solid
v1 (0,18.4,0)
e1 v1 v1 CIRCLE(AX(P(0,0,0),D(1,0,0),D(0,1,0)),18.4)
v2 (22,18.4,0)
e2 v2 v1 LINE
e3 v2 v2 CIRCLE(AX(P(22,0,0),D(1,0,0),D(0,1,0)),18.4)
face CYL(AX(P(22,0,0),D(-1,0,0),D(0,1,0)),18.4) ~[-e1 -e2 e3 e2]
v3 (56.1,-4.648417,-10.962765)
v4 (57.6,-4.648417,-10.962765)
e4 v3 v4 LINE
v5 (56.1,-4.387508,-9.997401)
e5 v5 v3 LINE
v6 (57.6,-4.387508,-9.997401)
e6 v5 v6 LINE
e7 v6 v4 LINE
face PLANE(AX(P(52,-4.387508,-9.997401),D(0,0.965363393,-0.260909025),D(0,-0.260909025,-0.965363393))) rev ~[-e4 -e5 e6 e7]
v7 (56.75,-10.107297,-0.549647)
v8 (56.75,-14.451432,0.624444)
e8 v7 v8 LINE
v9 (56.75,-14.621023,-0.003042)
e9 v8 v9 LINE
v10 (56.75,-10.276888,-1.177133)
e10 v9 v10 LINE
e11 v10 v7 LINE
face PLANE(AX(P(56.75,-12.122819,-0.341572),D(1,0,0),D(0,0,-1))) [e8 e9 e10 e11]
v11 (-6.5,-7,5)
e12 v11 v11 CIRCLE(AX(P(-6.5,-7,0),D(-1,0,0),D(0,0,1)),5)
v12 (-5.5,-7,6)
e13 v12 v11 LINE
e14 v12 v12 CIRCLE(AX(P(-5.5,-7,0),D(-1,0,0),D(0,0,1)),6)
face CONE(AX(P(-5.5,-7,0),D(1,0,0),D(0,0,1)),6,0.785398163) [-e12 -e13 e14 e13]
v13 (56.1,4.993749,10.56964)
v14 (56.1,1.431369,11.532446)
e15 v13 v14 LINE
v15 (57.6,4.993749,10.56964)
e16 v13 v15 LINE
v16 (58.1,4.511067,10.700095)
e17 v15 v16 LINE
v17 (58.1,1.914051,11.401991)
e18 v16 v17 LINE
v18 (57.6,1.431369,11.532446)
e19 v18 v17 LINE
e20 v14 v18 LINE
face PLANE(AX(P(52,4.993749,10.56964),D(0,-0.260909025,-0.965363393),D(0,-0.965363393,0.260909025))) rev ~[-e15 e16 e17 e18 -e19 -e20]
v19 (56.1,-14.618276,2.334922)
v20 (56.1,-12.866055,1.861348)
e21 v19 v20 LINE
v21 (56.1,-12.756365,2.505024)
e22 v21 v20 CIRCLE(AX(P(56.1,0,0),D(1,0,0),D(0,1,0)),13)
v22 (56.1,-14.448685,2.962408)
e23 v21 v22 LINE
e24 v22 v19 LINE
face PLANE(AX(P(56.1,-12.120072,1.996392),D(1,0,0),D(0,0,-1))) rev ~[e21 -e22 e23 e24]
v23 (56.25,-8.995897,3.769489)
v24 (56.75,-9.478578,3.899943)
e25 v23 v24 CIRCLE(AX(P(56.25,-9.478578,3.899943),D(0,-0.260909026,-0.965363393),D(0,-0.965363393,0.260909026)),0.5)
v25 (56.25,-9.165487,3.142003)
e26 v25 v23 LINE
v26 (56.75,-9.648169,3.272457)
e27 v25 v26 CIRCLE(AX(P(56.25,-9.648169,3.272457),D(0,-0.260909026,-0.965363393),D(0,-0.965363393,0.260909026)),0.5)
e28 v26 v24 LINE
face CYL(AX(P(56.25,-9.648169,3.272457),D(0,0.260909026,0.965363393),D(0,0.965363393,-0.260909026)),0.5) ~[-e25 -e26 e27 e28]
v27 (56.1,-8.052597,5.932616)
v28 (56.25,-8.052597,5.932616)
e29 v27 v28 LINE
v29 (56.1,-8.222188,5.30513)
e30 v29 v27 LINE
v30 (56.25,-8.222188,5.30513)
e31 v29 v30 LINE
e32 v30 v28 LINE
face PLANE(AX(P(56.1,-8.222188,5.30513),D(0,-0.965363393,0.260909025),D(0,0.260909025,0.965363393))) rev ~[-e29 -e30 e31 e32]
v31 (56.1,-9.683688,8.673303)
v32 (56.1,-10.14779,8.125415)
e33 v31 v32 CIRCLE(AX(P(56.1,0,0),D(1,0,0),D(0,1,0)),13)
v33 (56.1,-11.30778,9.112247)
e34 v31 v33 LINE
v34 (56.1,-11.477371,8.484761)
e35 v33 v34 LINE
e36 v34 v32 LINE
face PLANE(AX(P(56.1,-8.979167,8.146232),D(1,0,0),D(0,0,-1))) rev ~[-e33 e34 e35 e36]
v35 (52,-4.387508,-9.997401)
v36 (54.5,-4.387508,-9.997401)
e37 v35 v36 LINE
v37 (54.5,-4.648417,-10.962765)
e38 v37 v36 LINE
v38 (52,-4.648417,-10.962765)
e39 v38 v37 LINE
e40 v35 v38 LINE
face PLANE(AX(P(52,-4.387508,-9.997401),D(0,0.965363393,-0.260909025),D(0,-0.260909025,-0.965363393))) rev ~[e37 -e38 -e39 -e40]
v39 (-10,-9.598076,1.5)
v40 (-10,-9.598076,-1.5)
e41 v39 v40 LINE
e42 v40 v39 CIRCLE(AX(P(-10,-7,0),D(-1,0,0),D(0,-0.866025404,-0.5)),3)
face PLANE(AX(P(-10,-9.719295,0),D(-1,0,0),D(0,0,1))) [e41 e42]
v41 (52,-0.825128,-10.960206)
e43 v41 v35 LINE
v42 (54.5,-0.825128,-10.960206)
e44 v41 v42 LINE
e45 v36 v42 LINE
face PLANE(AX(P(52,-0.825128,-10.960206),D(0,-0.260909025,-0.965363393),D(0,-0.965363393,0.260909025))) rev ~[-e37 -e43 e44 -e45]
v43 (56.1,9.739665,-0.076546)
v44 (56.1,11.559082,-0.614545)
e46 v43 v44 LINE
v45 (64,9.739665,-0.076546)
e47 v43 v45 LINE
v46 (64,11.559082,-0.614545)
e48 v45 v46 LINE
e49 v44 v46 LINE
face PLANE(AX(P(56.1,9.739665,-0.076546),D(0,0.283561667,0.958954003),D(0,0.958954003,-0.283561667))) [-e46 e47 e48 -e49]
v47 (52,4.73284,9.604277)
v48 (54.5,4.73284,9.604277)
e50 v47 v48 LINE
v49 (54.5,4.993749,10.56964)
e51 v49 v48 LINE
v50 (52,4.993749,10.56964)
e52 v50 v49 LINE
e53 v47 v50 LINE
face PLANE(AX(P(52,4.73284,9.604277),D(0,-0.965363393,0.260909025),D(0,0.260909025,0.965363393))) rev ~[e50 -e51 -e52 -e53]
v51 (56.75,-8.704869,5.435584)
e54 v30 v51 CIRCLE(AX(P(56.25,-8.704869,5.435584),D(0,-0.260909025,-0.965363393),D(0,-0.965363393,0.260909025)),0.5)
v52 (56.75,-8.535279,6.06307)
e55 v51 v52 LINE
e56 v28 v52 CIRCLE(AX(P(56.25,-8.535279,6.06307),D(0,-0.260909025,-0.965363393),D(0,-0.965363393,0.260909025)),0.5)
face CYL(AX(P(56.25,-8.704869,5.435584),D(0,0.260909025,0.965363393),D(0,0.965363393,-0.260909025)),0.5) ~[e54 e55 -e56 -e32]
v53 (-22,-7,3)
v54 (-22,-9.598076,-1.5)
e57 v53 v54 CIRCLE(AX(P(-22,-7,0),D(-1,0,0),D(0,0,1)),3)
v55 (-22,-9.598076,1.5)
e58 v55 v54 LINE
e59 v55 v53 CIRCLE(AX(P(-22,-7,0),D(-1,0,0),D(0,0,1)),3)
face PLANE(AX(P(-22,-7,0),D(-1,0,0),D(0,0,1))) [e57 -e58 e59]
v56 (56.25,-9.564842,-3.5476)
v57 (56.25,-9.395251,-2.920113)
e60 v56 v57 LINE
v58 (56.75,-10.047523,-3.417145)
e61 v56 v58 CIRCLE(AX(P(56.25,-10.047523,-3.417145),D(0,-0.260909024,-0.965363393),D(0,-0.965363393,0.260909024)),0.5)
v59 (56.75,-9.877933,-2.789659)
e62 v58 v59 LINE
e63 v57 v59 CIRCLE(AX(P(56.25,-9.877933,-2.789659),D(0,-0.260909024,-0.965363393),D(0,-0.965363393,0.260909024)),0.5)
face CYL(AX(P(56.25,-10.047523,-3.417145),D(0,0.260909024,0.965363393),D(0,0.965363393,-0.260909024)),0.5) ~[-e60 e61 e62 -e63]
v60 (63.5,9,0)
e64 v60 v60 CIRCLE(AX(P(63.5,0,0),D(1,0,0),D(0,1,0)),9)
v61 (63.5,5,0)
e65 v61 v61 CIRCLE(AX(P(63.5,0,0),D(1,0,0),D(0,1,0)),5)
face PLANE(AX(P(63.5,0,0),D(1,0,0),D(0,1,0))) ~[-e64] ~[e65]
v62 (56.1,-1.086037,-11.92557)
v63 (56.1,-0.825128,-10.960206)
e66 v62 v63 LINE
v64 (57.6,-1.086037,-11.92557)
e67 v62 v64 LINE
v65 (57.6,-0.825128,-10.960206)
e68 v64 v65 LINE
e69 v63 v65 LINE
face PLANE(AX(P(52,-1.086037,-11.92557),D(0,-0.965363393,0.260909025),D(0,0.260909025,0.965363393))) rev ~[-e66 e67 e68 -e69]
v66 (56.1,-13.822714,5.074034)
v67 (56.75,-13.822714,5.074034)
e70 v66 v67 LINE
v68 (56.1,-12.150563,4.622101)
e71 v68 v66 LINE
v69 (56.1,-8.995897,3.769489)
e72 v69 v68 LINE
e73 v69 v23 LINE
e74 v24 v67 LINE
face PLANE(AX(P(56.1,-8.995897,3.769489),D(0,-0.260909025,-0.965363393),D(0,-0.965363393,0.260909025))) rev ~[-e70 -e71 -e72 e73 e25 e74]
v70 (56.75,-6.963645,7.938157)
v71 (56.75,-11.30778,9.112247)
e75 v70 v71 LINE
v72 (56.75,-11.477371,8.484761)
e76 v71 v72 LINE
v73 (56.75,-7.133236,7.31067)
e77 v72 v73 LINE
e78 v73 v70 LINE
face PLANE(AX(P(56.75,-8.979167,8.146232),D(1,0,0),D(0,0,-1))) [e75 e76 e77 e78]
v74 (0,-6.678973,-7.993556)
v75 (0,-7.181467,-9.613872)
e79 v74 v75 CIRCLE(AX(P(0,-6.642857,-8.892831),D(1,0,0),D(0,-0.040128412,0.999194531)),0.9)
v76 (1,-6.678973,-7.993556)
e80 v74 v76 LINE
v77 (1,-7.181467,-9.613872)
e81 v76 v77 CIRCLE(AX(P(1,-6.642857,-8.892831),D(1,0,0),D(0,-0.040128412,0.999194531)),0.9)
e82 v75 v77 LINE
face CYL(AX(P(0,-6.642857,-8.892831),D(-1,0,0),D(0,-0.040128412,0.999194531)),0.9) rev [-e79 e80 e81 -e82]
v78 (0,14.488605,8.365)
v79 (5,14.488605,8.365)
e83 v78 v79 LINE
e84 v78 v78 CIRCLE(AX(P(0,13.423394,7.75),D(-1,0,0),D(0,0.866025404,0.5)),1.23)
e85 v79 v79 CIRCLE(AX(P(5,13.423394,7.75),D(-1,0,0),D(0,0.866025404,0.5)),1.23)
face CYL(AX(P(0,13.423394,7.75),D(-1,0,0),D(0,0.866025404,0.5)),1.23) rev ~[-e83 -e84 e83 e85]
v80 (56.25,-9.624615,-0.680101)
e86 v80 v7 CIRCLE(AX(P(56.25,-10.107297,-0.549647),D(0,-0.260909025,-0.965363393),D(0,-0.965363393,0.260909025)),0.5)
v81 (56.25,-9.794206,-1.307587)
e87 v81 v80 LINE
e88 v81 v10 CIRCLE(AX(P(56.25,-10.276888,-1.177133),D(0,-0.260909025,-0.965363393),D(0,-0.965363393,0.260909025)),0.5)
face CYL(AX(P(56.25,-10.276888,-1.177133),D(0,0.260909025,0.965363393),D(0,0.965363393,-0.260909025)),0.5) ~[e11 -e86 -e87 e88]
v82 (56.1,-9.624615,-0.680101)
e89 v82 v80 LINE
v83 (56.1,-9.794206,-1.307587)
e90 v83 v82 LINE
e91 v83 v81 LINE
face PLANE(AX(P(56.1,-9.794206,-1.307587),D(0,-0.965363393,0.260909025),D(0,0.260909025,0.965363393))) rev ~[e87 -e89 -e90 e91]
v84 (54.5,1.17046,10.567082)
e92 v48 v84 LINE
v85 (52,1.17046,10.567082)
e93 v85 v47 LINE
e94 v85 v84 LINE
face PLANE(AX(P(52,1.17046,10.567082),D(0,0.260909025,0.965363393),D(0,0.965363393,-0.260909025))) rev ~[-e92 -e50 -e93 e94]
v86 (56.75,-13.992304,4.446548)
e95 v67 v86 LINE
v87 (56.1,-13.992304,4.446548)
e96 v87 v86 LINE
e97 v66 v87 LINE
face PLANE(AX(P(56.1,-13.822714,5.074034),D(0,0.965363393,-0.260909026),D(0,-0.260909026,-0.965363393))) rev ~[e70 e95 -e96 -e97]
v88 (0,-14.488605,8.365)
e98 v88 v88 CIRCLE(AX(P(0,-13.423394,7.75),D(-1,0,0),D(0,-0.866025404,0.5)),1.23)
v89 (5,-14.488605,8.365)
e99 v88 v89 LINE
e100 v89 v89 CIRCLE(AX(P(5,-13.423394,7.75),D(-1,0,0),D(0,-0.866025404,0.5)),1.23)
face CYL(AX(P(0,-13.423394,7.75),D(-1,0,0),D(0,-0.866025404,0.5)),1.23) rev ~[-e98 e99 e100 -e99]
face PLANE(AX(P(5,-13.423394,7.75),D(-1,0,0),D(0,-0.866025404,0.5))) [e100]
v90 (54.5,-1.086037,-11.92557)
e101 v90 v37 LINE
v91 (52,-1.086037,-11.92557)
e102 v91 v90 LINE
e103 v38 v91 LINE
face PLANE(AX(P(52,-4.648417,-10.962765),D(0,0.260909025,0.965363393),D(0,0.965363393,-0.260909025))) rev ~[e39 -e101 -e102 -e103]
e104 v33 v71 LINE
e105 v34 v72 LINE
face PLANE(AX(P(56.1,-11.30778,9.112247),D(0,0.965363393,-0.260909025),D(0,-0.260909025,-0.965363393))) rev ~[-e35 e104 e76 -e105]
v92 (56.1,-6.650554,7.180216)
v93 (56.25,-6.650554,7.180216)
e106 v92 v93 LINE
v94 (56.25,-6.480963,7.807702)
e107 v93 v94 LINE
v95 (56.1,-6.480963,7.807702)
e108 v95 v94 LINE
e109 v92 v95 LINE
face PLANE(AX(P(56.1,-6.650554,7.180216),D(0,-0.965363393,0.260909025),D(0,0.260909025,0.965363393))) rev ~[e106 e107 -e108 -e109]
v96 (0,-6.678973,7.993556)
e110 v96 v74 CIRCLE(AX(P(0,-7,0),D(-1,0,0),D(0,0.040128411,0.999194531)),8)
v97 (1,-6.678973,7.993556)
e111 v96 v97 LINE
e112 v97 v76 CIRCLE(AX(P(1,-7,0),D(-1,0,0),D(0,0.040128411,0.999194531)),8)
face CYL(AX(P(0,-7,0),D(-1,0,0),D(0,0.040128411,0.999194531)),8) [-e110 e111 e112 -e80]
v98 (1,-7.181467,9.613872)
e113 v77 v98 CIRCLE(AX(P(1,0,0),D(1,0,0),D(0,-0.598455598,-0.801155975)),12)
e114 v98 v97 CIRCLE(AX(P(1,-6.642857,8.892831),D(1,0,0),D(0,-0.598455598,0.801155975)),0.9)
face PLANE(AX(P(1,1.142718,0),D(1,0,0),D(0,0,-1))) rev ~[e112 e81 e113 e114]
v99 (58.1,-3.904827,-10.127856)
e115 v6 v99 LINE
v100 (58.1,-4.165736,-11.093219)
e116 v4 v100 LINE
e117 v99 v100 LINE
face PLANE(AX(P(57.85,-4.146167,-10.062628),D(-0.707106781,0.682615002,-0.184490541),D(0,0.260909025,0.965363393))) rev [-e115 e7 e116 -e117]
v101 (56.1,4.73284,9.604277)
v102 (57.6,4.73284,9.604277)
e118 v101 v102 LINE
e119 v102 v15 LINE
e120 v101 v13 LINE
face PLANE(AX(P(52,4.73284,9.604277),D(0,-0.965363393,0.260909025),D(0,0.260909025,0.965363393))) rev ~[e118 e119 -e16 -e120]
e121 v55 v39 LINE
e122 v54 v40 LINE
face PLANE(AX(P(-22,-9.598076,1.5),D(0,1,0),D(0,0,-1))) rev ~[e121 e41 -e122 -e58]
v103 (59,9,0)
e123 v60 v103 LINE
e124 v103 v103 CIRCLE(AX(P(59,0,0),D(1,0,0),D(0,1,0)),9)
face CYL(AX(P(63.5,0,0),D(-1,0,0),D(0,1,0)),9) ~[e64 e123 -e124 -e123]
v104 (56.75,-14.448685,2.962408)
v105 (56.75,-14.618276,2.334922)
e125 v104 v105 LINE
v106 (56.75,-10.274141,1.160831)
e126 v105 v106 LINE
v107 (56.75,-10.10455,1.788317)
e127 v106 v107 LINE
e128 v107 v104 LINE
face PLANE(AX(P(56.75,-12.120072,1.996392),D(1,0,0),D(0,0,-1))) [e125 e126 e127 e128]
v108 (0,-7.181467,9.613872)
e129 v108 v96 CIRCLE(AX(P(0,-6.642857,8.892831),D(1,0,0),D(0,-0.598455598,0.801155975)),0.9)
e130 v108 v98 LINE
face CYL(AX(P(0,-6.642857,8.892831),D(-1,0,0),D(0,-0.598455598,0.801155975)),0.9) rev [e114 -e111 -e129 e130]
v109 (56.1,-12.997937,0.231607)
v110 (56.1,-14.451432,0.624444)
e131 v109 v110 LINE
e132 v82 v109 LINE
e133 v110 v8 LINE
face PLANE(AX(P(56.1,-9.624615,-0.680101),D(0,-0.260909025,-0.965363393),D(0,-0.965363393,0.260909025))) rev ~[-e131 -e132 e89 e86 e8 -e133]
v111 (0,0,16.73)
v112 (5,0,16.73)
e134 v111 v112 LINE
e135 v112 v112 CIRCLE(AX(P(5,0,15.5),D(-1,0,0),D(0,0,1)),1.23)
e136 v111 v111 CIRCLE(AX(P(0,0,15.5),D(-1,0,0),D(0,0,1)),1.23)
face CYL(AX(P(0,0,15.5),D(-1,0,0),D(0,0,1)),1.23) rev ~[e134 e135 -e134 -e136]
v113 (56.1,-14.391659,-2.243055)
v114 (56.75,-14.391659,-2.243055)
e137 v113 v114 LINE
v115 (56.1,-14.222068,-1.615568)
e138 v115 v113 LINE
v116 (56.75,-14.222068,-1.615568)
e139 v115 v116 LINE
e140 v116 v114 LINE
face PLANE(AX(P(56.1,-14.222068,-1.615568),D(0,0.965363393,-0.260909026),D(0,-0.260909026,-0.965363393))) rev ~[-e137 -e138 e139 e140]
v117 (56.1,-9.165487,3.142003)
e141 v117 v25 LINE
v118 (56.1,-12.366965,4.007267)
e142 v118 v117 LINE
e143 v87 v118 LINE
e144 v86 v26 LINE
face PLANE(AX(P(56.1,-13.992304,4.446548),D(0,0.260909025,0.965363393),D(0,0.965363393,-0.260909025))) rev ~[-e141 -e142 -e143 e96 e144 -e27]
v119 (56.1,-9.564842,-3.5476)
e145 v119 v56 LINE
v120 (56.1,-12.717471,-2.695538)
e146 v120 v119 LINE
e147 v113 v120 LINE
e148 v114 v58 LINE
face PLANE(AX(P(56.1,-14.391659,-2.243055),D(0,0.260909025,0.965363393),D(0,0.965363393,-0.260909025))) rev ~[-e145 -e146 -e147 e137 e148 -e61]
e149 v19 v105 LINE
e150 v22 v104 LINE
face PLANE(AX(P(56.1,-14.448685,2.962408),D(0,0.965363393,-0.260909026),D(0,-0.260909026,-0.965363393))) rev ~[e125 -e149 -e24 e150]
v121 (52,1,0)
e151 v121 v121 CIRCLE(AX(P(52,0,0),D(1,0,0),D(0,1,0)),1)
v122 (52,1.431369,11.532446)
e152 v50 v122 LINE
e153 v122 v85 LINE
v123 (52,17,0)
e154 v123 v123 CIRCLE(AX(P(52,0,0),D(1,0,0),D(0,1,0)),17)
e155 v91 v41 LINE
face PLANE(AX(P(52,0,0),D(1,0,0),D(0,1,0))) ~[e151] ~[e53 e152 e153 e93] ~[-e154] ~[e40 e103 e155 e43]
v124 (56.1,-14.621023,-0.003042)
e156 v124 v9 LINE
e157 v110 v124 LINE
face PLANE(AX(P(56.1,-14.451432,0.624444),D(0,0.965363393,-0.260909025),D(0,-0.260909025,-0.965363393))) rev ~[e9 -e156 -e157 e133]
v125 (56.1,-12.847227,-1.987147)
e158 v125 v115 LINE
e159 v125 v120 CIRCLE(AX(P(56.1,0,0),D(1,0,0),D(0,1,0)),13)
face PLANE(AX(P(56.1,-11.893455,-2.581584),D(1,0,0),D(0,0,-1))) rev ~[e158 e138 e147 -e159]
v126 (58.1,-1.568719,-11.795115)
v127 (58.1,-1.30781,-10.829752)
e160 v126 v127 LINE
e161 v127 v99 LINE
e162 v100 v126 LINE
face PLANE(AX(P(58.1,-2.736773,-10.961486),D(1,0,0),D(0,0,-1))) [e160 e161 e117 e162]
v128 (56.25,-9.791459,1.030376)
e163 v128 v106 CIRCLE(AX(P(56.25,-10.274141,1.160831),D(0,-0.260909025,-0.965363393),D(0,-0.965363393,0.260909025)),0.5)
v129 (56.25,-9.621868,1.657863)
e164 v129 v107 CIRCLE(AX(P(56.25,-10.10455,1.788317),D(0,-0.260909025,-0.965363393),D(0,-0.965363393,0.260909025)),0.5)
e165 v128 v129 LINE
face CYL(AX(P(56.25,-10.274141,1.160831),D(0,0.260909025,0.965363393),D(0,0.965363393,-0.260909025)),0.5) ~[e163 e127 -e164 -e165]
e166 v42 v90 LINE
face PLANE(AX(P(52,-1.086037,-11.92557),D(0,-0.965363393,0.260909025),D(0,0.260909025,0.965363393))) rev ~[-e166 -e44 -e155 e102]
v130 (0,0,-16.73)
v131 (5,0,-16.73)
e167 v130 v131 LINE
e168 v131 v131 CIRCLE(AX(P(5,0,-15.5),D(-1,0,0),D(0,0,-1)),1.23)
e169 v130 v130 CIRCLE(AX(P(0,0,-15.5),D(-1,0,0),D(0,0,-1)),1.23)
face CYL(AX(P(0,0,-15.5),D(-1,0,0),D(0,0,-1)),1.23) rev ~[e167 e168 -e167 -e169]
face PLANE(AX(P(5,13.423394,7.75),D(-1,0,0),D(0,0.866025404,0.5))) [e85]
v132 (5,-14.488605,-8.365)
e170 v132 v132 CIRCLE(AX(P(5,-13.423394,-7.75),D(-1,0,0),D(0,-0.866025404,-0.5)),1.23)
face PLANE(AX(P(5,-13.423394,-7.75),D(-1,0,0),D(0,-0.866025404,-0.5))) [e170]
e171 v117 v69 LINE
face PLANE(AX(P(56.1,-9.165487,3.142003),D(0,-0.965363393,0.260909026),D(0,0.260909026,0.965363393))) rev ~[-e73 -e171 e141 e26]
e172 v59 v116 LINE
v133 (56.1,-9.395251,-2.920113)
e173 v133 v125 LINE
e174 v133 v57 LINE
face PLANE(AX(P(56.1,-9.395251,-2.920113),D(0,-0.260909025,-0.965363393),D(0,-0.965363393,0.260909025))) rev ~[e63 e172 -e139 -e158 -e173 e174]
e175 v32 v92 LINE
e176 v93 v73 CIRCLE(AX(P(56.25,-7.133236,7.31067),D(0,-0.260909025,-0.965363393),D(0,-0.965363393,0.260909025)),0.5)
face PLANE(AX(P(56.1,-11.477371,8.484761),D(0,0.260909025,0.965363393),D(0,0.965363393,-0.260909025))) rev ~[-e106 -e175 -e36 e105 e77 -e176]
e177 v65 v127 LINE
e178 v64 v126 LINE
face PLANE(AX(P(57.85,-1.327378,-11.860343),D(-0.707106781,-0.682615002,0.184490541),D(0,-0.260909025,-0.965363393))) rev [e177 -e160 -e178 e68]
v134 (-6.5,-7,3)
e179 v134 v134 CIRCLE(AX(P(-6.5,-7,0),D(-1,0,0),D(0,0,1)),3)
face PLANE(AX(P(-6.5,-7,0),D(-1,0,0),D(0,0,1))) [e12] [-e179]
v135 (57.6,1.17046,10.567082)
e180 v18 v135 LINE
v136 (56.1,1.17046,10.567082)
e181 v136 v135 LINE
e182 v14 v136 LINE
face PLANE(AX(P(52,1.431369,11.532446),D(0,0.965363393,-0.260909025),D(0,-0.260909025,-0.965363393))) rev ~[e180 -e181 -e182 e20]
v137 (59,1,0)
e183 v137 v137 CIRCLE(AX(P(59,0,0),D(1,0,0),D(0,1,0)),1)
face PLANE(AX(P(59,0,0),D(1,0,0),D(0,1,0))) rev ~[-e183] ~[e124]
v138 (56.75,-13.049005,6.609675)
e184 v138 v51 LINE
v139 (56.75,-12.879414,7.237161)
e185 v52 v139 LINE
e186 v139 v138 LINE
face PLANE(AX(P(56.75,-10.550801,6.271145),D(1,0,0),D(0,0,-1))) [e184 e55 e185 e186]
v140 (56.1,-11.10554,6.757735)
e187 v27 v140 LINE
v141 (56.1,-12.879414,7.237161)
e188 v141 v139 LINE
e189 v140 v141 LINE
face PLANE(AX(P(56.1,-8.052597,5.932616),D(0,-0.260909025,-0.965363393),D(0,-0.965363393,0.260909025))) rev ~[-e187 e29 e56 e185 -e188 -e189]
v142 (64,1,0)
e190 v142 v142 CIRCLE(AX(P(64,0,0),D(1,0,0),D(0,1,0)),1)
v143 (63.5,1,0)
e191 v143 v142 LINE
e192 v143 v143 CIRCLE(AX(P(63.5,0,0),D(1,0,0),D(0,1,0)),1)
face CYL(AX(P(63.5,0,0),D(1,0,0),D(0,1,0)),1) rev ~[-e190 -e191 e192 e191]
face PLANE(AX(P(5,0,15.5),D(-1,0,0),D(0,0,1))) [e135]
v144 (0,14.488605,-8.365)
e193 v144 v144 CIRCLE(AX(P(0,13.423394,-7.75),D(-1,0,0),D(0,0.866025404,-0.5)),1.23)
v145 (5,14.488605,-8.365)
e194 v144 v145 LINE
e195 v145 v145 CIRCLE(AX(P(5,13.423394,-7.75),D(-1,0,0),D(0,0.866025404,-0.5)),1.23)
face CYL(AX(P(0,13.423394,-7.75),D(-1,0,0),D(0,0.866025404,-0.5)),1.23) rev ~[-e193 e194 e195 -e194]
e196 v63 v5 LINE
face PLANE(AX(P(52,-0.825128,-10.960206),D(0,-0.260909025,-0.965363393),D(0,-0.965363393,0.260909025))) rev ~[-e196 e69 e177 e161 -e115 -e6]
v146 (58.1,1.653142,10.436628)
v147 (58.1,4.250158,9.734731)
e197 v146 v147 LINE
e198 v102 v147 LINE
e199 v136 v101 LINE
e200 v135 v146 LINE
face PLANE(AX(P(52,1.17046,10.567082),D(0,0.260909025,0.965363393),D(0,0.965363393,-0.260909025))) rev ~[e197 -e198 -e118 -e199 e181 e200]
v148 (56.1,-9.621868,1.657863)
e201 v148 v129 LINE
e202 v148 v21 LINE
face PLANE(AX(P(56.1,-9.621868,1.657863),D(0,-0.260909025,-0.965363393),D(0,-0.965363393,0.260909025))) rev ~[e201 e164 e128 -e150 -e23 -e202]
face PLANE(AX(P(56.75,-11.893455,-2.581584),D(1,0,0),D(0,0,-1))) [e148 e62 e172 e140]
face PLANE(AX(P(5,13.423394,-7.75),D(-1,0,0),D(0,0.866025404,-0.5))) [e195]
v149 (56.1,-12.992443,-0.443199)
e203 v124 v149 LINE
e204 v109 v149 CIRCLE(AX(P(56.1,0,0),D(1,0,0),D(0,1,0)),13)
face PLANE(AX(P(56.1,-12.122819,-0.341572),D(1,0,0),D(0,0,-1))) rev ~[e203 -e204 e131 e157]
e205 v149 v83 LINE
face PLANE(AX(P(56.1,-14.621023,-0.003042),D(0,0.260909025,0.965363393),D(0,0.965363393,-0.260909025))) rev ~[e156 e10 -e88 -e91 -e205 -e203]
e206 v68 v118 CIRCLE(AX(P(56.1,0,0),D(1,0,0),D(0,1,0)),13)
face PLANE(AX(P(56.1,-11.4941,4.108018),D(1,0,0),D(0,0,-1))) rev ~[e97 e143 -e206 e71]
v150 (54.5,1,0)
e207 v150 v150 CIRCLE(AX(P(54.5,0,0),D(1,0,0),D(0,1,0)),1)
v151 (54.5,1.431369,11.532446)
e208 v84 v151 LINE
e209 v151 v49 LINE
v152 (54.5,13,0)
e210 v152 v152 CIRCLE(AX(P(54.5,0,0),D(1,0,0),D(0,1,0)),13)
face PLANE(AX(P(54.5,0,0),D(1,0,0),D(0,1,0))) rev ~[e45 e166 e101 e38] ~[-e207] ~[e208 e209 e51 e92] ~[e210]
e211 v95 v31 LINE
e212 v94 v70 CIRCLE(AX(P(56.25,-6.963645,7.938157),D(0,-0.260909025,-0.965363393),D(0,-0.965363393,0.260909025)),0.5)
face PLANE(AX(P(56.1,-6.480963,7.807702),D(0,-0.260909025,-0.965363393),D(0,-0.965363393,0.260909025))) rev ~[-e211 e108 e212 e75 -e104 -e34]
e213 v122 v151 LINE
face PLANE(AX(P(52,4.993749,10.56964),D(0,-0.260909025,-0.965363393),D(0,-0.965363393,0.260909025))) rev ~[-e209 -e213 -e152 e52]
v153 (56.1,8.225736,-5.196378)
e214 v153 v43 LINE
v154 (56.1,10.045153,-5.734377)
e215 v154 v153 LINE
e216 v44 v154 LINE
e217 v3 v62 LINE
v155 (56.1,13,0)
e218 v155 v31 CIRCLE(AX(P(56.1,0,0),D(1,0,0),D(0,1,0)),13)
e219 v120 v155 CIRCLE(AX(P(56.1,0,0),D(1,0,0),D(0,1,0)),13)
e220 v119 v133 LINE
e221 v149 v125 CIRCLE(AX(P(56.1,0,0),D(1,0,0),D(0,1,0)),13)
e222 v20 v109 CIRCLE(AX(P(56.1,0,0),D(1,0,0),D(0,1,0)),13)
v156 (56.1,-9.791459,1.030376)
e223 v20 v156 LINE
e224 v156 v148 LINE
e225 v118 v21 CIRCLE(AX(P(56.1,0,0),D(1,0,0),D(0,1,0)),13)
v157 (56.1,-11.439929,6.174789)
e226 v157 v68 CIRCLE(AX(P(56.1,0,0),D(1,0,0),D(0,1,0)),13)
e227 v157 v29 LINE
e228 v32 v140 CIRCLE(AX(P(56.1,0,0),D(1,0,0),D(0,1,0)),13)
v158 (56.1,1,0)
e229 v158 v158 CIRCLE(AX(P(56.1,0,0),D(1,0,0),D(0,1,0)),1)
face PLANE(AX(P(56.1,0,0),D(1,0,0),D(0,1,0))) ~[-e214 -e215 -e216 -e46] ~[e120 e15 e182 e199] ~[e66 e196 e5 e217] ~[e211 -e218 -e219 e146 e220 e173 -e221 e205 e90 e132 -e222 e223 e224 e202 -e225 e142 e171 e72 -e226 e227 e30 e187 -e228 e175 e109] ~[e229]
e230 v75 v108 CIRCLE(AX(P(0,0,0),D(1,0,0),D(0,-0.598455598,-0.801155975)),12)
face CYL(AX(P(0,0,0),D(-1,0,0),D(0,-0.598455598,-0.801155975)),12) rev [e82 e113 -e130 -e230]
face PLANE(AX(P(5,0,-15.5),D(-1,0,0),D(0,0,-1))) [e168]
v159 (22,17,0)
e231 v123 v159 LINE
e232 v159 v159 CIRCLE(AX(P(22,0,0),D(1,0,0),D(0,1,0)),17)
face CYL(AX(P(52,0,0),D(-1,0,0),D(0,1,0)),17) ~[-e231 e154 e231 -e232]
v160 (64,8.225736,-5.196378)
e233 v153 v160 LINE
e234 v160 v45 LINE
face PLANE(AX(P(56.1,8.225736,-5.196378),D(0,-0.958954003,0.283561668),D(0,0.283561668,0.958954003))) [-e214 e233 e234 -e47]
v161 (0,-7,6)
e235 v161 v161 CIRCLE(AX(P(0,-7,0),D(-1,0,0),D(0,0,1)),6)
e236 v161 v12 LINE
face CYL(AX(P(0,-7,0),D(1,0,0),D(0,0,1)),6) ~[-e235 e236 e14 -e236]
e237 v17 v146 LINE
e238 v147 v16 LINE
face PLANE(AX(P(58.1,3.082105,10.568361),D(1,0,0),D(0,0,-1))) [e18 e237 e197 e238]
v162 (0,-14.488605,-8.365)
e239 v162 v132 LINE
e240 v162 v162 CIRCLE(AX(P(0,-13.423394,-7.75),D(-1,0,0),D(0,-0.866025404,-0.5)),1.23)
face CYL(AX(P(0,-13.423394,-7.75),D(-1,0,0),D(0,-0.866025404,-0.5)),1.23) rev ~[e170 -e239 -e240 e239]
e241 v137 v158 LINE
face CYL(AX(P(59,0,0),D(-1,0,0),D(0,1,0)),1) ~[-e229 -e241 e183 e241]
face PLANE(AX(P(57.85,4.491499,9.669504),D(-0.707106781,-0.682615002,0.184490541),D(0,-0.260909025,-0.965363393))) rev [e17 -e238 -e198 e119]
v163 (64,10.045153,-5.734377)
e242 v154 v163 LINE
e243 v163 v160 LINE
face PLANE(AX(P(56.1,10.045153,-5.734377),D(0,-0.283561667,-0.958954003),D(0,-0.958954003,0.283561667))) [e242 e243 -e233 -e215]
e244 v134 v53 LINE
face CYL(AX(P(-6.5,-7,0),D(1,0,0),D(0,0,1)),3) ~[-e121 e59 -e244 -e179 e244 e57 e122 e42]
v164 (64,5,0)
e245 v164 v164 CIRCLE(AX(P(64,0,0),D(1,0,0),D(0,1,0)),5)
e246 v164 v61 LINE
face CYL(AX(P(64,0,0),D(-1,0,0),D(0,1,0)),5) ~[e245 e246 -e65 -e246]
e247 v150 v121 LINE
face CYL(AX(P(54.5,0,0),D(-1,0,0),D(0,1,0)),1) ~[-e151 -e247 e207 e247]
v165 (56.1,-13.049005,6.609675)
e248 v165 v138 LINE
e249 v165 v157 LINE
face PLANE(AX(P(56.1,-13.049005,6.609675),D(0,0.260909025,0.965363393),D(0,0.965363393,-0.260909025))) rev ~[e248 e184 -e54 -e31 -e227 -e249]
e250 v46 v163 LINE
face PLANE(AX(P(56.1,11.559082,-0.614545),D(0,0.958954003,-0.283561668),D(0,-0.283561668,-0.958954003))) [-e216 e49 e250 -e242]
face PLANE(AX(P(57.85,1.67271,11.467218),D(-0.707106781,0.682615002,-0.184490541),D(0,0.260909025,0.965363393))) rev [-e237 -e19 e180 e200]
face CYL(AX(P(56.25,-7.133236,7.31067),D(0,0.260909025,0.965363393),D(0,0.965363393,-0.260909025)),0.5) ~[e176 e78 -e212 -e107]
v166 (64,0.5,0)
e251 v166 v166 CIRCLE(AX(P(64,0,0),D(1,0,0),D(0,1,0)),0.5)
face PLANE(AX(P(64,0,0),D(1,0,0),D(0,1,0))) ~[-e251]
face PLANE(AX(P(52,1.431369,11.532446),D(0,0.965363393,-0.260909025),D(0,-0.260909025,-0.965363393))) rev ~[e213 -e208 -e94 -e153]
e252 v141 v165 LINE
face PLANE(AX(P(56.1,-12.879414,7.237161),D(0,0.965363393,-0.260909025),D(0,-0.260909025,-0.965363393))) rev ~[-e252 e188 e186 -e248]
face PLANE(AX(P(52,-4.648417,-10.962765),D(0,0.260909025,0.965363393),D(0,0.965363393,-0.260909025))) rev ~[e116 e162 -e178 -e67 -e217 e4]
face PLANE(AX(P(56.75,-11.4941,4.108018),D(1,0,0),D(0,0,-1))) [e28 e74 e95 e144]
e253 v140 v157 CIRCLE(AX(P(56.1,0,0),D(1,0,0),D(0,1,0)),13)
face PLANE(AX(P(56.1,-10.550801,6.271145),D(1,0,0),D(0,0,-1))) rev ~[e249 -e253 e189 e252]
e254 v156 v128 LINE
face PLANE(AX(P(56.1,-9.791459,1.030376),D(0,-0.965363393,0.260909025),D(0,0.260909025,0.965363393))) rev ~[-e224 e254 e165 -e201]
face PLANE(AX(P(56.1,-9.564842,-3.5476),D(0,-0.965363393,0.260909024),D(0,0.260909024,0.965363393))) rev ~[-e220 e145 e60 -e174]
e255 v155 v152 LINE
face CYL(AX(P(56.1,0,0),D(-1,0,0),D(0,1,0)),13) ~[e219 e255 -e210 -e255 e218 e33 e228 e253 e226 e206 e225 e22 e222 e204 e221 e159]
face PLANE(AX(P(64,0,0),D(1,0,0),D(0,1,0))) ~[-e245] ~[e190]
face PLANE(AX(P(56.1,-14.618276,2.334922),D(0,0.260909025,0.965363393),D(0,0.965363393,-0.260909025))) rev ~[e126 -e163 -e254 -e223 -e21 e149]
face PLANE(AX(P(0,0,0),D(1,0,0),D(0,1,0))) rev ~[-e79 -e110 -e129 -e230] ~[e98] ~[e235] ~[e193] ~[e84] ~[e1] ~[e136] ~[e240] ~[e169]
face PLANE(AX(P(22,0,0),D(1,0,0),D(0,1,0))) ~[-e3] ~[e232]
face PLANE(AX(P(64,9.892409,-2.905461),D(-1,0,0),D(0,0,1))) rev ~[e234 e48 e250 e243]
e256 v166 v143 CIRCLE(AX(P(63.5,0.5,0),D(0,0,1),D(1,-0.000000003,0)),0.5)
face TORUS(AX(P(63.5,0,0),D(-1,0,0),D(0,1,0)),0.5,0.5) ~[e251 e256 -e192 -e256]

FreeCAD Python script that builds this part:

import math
import FreeCAD as App
import Part
import Sketcher
from FreeCAD import Vector


def edges_at(feature, points):
    """Names of the edges that pass closest to the given points."""
    edges = feature.Shape.Edges
    near = lambda p: min(range(len(edges)), key=lambda i: edges[i].distToShape(Part.Vertex(*p))[0])
    return sorted({f"Edge{near(p) + 1}" for p in points})

doc = App.newDocument("Part")
params = doc.addObject("Spreadsheet::Sheet", "Params")
for row, (alias, value) in enumerate([
    ("sketch1_radius", "0.5 mm"),
    ("sketch1_width", "64 mm"),
    ("sketch1_width2", "30 mm"),
    ("sketch1_width3", "22 mm"),
    ("sketch1_height", "4 mm"),
    ("revolution_angle", "360 deg"),
    ("sketch2_diameter", "12 mm"),
    ("pad1_length", "6.5 mm"),
    ("sketch3_diameter", "6 mm"),
    ("pad2_length", "15.5 mm"),
    ("sketch4_radius", "3 mm"),
    ("sketch4_height", "3 mm"),
    ("pocket1_length", "12 mm"),
    ("chamfer_size", "1 mm"),
    ("sketch5_diameter", "2.46 mm"),
    ("pocket2_length", "5 mm"),
    ("pad3_length", "7.9 mm"),
    ("sketch7_length", "1 mm"),
    ("pad4_length", "6.1 mm"),
    ("chamfer2_size", "0.5 mm"),
    ("sketch8_length", "5 mm"),
    ("sketch8_length2", "0.65 mm"),
    ("pad5_length", "0.65 mm"),
    ("fillet_radius", "0.5 mm"),
    ("sketch9_radius", "12 mm"),
    ("sketch9_radius2", "8 mm"),
    ("sketch9_radius3", "0.9 mm"),
    ("pocket3_length", "1 mm"),
], start=1):
    params.set(f"A{row}", alias)
    params.set(f"B{row}", "=" + value)
    params.setAlias(f"B{row}", alias)

body = doc.addObject("PartDesign::Body", "Body")

sketch1 = body.newObject("Sketcher::SketchObject", "Sketch")
sketch1.AttachmentSupport = (doc.getObject("XY_Plane"), [""])
sketch1.MapMode = "FlatFace"
sketch1.addGeometry([
    Part.LineSegment(Vector(0, 0, 0), Vector(64, 0, 0)),
    Part.LineSegment(Vector(64, 0, 0), Vector(64, 0.5, 0)),
    Part.ArcOfCircle(Part.Circle(Vector(63.5, 0.5, 0), Vector(0, 0, 1), 0.5), math.radians(0), math.radians(90)),
    Part.LineSegment(Vector(63.5, 1, 0), Vector(64, 1, 0)),
    Part.LineSegment(Vector(64, 1, 0), Vector(64, 5, 0)),
    Part.LineSegment(Vector(64, 5, 0), Vector(63.5, 5, 0)),
    Part.LineSegment(Vector(63.5, 5, 0), Vector(63.5, 9, 0)),
    Part.LineSegment(Vector(63.5, 9, 0), Vector(59, 9, 0)),
    Part.LineSegment(Vector(59, 9, 0), Vector(59, 1, 0)),
    Part.LineSegment(Vector(59, 1, 0), Vector(56.1, 1, 0)),
    Part.LineSegment(Vector(56.1, 1, 0), Vector(56.1, 13, 0)),
    Part.LineSegment(Vector(56.1, 13, 0), Vector(54.5, 13, 0)),
    Part.LineSegment(Vector(54.5, 13, 0), Vector(54.5, 1, 0)),
    Part.LineSegment(Vector(54.5, 1, 0), Vector(52, 1, 0)),
    Part.LineSegment(Vector(52, 1, 0), Vector(52, 17, 0)),
    Part.LineSegment(Vector(52, 17, 0), Vector(22, 17, 0)),
    Part.LineSegment(Vector(22, 17, 0), Vector(22, 18.4, 0)),
    Part.LineSegment(Vector(22, 18.4, 0), Vector(0, 18.4, 0)),
    Part.LineSegment(Vector(0, 18.4, 0), Vector(0, 0, 0)),
], False)
sketch1.addConstraint([
    Sketcher.Constraint("Coincident", 0, 2, 1, 1),
    Sketcher.Constraint("Tangent", 1, 2, 2, 1),
    Sketcher.Constraint("Tangent", 2, 2, 3, 1),
    Sketcher.Constraint("Coincident", 3, 2, 4, 1),
    Sketcher.Constraint("Coincident", 4, 2, 5, 1),
    Sketcher.Constraint("Coincident", 5, 2, 6, 1),
    Sketcher.Constraint("Coincident", 6, 2, 7, 1),
    Sketcher.Constraint("Coincident", 7, 2, 8, 1),
    Sketcher.Constraint("Coincident", 8, 2, 9, 1),
    Sketcher.Constraint("Coincident", 9, 2, 10, 1),
    Sketcher.Constraint("Coincident", 10, 2, 11, 1),
    Sketcher.Constraint("Coincident", 11, 2, 12, 1),
    Sketcher.Constraint("Coincident", 12, 2, 13, 1),
    Sketcher.Constraint("Coincident", 13, 2, 14, 1),
    Sketcher.Constraint("Coincident", 14, 2, 15, 1),
    Sketcher.Constraint("Coincident", 15, 2, 16, 1),
    Sketcher.Constraint("Coincident", 16, 2, 17, 1),
    Sketcher.Constraint("Coincident", 17, 2, 18, 1),
    Sketcher.Constraint("Coincident", 18, 2, 0, 1),
    Sketcher.Constraint("Horizontal", 0),
    Sketcher.Constraint("Vertical", 1),
    Sketcher.Constraint("Horizontal", 3),
    Sketcher.Constraint("Vertical", 4),
    Sketcher.Constraint("Horizontal", 5),
    Sketcher.Constraint("Vertical", 6),
    Sketcher.Constraint("Horizontal", 7),
    Sketcher.Constraint("Vertical", 8),
    Sketcher.Constraint("Horizontal", 9),
    Sketcher.Constraint("Vertical", 10),
    Sketcher.Constraint("Horizontal", 11),
    Sketcher.Constraint("Vertical", 12),
    Sketcher.Constraint("Horizontal", 13),
    Sketcher.Constraint("Vertical", 14),
    Sketcher.Constraint("Horizontal", 15),
    Sketcher.Constraint("Vertical", 16),
    Sketcher.Constraint("Horizontal", 17),
    Sketcher.Constraint("Vertical", 18),
    Sketcher.Constraint("Coincident", 18, 2, -1, 1),
    Sketcher.Constraint("Horizontal", 3, 2, 8, 2),
    Sketcher.Constraint("Horizontal", 9, 2, 12, 2),
    Sketcher.Constraint("Vertical", 1, 2, 3, 2),
    Sketcher.Constraint("Vertical", 2, 2, 5, 2),
    Sketcher.Constraint("Equal", 5, 1),
    Sketcher.Constraint("Equal", 4, 6),
    Sketcher.Constraint("Radius", 2, 0.5),
    Sketcher.Constraint("DistanceX", 0, 1, 0, 2, 64.0),
    Sketcher.Constraint("DistanceX", 15, 2, 15, 1, 30.0),
    Sketcher.Constraint("DistanceX", 17, 2, 17, 1, 22.0),
    Sketcher.Constraint("DistanceY", 4, 1, 4, 2, 4.0),
    Sketcher.Constraint("DistanceY", 10, 1, 10, 2, 12.0),
    Sketcher.Constraint("DistanceY", 14, 1, 14, 2, 16.0),
    Sketcher.Constraint("DistanceX", 7, 2, 7, 1, 4.5),
    Sketcher.Constraint("DistanceX", 9, 2, 9, 1, 2.9),
    Sketcher.Constraint("DistanceX", 11, 2, 11, 1, 1.6),
    Sketcher.Constraint("DistanceY", 16, 1, 16, 2, 1.4),
])
sketch1.setExpression("Constraints[44]", "Params.sketch1_radius")
sketch1.setExpression("Constraints[45]", "Params.sketch1_width")
sketch1.setExpression("Constraints[46]", "Params.sketch1_width2")
sketch1.setExpression("Constraints[47]", "Params.sketch1_width3")
sketch1.setExpression("Constraints[48]", "Params.sketch1_height")
revolution = body.newObject("PartDesign::Revolution", "Revolution")
revolution.Profile = sketch1
revolution.ReferenceAxis = (sketch1, ["H_Axis"])
revolution.setExpression("Angle", "Params.revolution_angle")

sketch2 = body.newObject("Sketcher::SketchObject", "Sketch001")
sketch2.AttachmentSupport = (doc.getObject("YZ_Plane"), [""])
sketch2.MapMode = "FlatFace"
sketch2.addGeometry(Part.Circle(Vector(-7, 0, 0), Vector(0, 0, 1), 6), False)
sketch2.addConstraint([
    Sketcher.Constraint("PointOnObject", 0, 3, -1),
    Sketcher.Constraint("Diameter", 0, 12.0),
    Sketcher.Constraint("DistanceX", 0, 3, -1, 1, 7.0),
])
sketch2.setExpression("Constraints[1]", "Params.sketch2_diameter")
pad1 = body.newObject("PartDesign::Pad", "Pad")
pad1.Profile = sketch2
pad1.setExpression("Length", "Params.pad1_length")
pad1.Reversed = True

sketch3 = body.newObject("Sketcher::SketchObject", "Sketch002")
sketch3.AttachmentSupport = (doc.getObject("YZ_Plane"), [""])
sketch3.MapMode = "FlatFace"
sketch3.AttachmentOffset = App.Placement(Vector(0, 0, -6.5), App.Rotation())
sketch3.addGeometry(Part.Circle(Vector(-7, 0, 0), Vector(0, 0, 1), 3), False)
sketch3.addConstraint([
    Sketcher.Constraint("PointOnObject", 0, 3, -1),
    Sketcher.Constraint("Diameter", 0, 6.0),
    Sketcher.Constraint("DistanceX", 0, 3, -1, 1, 7.0),
])
sketch3.setExpression("Constraints[1]", "Params.sketch3_diameter")
pad2 = body.newObject("PartDesign::Pad", "Pad001")
pad2.Profile = sketch3
pad2.setExpression("Length", "Params.pad2_length")
pad2.Reversed = True

sketch4 = body.newObject("Sketcher::SketchObject", "Sketch003")
sketch4.AttachmentSupport = (doc.getObject("YZ_Plane"), [""])
sketch4.MapMode = "FlatFace"
sketch4.AttachmentOffset = App.Placement(Vector(0, 0, -22), App.Rotation())
sketch4.addGeometry([
    Part.LineSegment(Vector(-9.6, 1.5, 0), Vector(-9.6, -1.5, 0)),
    Part.ArcOfCircle(Part.Circle(Vector(-7, 0, 0), Vector(0, 0, 1), 3), math.radians(150), math.radians(210)),
], False)
sketch4.addConstraint([
    Sketcher.Constraint("Coincident", 0, 1, 1, 1),
    Sketcher.Constraint("Coincident", 1, 2, 0, 2),
    Sketcher.Constraint("Vertical", 0),
    Sketcher.Constraint("PointOnObject", 1, 3, -1),
    Sketcher.Constraint("Radius", 1, 3.0),
    Sketcher.Constraint("DistanceY", 0, 2, 0, 1, 3.0),
    Sketcher.Constraint("DistanceX", 1, 3, -1, 1, 7.0),
])
sketch4.setExpression("Constraints[4]", "Params.sketch4_radius")
sketch4.setExpression("Constraints[5]", "Params.sketch4_height")
pocket1 = body.newObject("PartDesign::Pocket", "Pocket")
pocket1.Profile = sketch4
pocket1.setExpression("Length", "Params.pocket1_length")
pocket1.Reversed = True
doc.recompute()

chamfer = body.newObject("PartDesign::Chamfer", "Chamfer")
chamfer.Base = (pocket1, edges_at(pocket1, [(-6.5, -7, -6)]))
chamfer.setExpression("Size", "Params.chamfer_size")

sketch5 = body.newObject("Sketcher::SketchObject", "Sketch004")
sketch5.AttachmentSupport = (doc.getObject("YZ_Plane"), [""])
sketch5.MapMode = "FlatFace"
sketch5.addGeometry(Part.Circle(Vector(0, 15.5, 0), Vector(0, 0, 1), 1.2), False)
sketch5.addConstraint([
    Sketcher.Constraint("PointOnObject", 0, 3, -2),
    Sketcher.Constraint("Diameter", 0, 2.46),
    Sketcher.Constraint("DistanceY", -1, 1, 0, 3, 15.5),
])
sketch5.setExpression("Constraints[1]", "Params.sketch5_diameter")
pocket2 = body.newObject("PartDesign::Pocket", "Pocket001")
pocket2.Profile = sketch5
pocket2.setExpression("Length", "Params.pocket2_length")
pocket2.Reversed = True
doc.recompute()

polarpattern = body.newObject("PartDesign::PolarPattern", "PolarPattern")
polarpattern.Originals = [pocket2]
polarpattern.Axis = (doc.getObject("X_Axis"), [""])
polarpattern.Angle = 360
polarpattern.Occurrences = 6
body.Tip = polarpattern

sketch6 = body.newObject("Sketcher::SketchObject", "Sketch005")
sketch6.AttachmentSupport = (doc.getObject("YZ_Plane"), [""])
sketch6.MapMode = "FlatFace"
sketch6.AttachmentOffset = App.Placement(Vector(0, 0, 56.1), App.Rotation())
sketch6.addGeometry([
    Part.LineSegment(Vector(10, -5.7, 0), Vector(11.6, -0.6, 0)),
    Part.LineSegment(Vector(11.6, -0.6, 0), Vector(9.7, -0.1, 0)),
    Part.LineSegment(Vector(9.7, -0.1, 0), Vector(8.2, -5.2, 0)),
    Part.LineSegment(Vector(8.2, -5.2, 0), Vector(10, -5.7, 0)),
], False)
sketch6.addConstraint([
    Sketcher.Constraint("Coincident", 0, 2, 1, 1),
    Sketcher.Constraint("Coincident", 1, 2, 2, 1),
    Sketcher.Constraint("Coincident", 2, 2, 3, 1),
    Sketcher.Constraint("Coincident", 3, 2, 0, 1),
    Sketcher.Constraint("Perpendicular", 0, 1),
    Sketcher.Constraint("Perpendicular", 1, 2),
    Sketcher.Constraint("Perpendicular", 2, 3),
    Sketcher.Constraint("DistanceY", 0, 2, 1, 2, 0.538),
    Sketcher.Constraint("DistanceX", -1, 1, 0, 2, 11.559082),
    Sketcher.Constraint("DistanceX", 2, 2, 1, 2, 1.513929),
    Sketcher.Constraint("DistanceY", 3, 2, 1, 2, 5.657832),
    Sketcher.Constraint("DistanceY", 0, 2, -1, 1, 0.614545),
])
pad3 = body.newObject("PartDesign::Pad", "Pad002")
pad3.Profile = sketch6
pad3.setExpression("Length", "Params.pad3_length")

sketch7 = body.newObject("Sketcher::SketchObject", "Sketch006")
sketch7.AttachmentSupport = (doc.getObject("YZ_Plane"), [""])
sketch7.MapMode = "FlatFace"
sketch7.AttachmentOffset = App.Placement(Vector(0, 0, 52), App.Rotation())
sketch7.addGeometry([
    Part.LineSegment(Vector(5, 10.6, 0), Vector(1.4, 11.5, 0)),
    Part.LineSegment(Vector(1.4, 11.5, 0), Vector(1.2, 10.6, 0)),
    Part.LineSegment(Vector(1.2, 10.6, 0), Vector(4.7, 9.6, 0)),
    Part.LineSegment(Vector(4.7, 9.6, 0), Vector(5, 10.6, 0)),
    Part.LineSegment(Vector(-0.8, -11, 0), Vector(-4.4, -10, 0)),
    Part.LineSegment(Vector(-4.4, -10, 0), Vector(-4.6, -11, 0)),
    Part.LineSegment(Vector(-4.6, -11, 0), Vector(-1.1, -11.9, 0)),
    Part.LineSegment(Vector(-1.1, -11.9, 0), Vector(-0.8, -11, 0)),
], False)
sketch7.addConstraint([
    Sketcher.Constraint("Coincident", 0, 2, 1, 1),
    Sketcher.Constraint("Coincident", 1, 2, 2, 1),
    Sketcher.Constraint("Coincident", 2, 2, 3, 1),
    Sketcher.Constraint("Coincident", 3, 2, 0, 1),
    Sketcher.Constraint("Coincident", 4, 2, 5, 1),
    Sketcher.Constraint("Coincident", 5, 2, 6, 1),
    Sketcher.Constraint("Coincident", 6, 2, 7, 1),
    Sketcher.Constraint("Coincident", 7, 2, 4, 1),
    Sketcher.Constraint("Perpendicular", 0, 1),
    Sketcher.Constraint("Perpendicular", 1, 2),
    Sketcher.Constraint("Perpendicular", 2, 3),
    Sketcher.Constraint("Perpendicular", 3, 4),
    Sketcher.Constraint("Perpendicular", 4, 5),
    Sketcher.Constraint("Perpendicular", 5, 6),
    Sketcher.Constraint("Perpendicular", 6, 7),
    Sketcher.Constraint("Equal", 2, 4),
    Sketcher.Constraint("Equal", 3, 5),
    Sketcher.Constraint("Distance", 1, 1.0),
    Sketcher.Constraint("DistanceY", 4, 2, -1, 1, 9.997401),
    Sketcher.Constraint("DistanceX", -1, 1, 0, 2, 1.431369),
    Sketcher.Constraint("DistanceX", -1, 1, 1, 2, 1.17046),
    Sketcher.Constraint("DistanceX", -1, 1, 2, 2, 4.73284),
    Sketcher.Constraint("DistanceY", -1, 1, 3, 2, 10.56964),
    Sketcher.Constraint("DistanceX", 4, 2, -1, 1, 4.387508),
])
sketch7.setExpression("Constraints[17]", "Params.sketch7_length")
pad4 = body.newObject("PartDesign::Pad", "Pad003")
pad4.Profile = sketch7
pad4.setExpression("Length", "Params.pad4_length")
doc.recompute()

chamfer2 = body.newObject("PartDesign::Chamfer", "Chamfer001")
chamfer2.Base = (pad4, edges_at(pad4, [
    (58.1, 1.301, 11.05),
    (58.1, 4.863, 10.087),
    (58.1, -4.518, -10.48),
    (58.1, -0.956, -11.443),
]))
chamfer2.setExpression("Size", "Params.chamfer2_size")

sketch8 = body.newObject("Sketcher::SketchObject", "Sketch007")
sketch8.AttachmentSupport = (doc.getObject("YZ_Plane"), [""])
sketch8.MapMode = "FlatFace"
sketch8.AttachmentOffset = App.Placement(Vector(0, 0, 56.1), App.Rotation())
sketch8.addGeometry([
    Part.LineSegment(Vector(-6.5, 7.8, 0), Vector(-11.3, 9.1, 0)),
    Part.LineSegment(Vector(-11.3, 9.1, 0), Vector(-11.5, 8.5, 0)),
    Part.LineSegment(Vector(-11.5, 8.5, 0), Vector(-6.7, 7.2, 0)),
    Part.LineSegment(Vector(-6.7, 7.2, 0), Vector(-6.5, 7.8, 0)),
    Part.LineSegment(Vector(-8.1, 5.9, 0), Vector(-12.9, 7.2, 0)),
    Part.LineSegment(Vector(-12.9, 7.2, 0), Vector(-13, 6.6, 0)),
    Part.LineSegment(Vector(-13, 6.6, 0), Vector(-8.2, 5.3, 0)),
    Part.LineSegment(Vector(-8.2, 5.3, 0), Vector(-8.1, 5.9, 0)),
    Part.LineSegment(Vector(-9, 3.8, 0), Vector(-13.8, 5.1, 0)),
    Part.LineSegment(Vector(-13.8, 5.1, 0), Vector(-14, 4.4, 0)),
    Part.LineSegment(Vector(-14, 4.4, 0), Vector(-9.2, 3.1, 0)),
    Part.LineSegment(Vector(-9.2, 3.1, 0), Vector(-9, 3.8, 0)),
    Part.LineSegment(Vector(-9.6, 1.7, 0), Vector(-14.4, 3, 0)),
    Part.LineSegment(Vector(-14.4, 3, 0), Vector(-14.6, 2.3, 0)),
    Part.LineSegment(Vector(-14.6, 2.3, 0), Vector(-9.8, 1, 0)),
    Part.LineSegment(Vector(-9.8, 1, 0), Vector(-9.6, 1.7, 0)),
    Part.LineSegment(Vector(-9.6, -0.7, 0), Vector(-14.5, 0.6, 0)),
    Part.LineSegment(Vector(-14.5, 0.6, 0), Vector(-14.6, 0, 0)),
    Part.LineSegment(Vector(-14.6, 0, 0), Vector(-9.8, -1.3, 0)),
    Part.LineSegment(Vector(-9.8, -1.3, 0), Vector(-9.6, -0.7, 0)),
    Part.LineSegment(Vector(-9.4, -2.9, 0), Vector(-14.2, -1.6, 0)),
    Part.LineSegment(Vector(-14.2, -1.6, 0), Vector(-14.4, -2.2, 0)),
    Part.LineSegment(Vector(-14.4, -2.2, 0), Vector(-9.6, -3.5, 0)),
    Part.LineSegment(Vector(-9.6, -3.5, 0), Vector(-9.4, -2.9, 0)),
], False)
sketch8.addConstraint([
    Sketcher.Constraint("Coincident", 0, 2, 1, 1),
    Sketcher.Constraint("Coincident", 1, 2, 2, 1),
    Sketcher.Constraint("Coincident", 2, 2, 3, 1),
    Sketcher.Constraint("Coincident", 3, 2, 0, 1),
    Sketcher.Constraint("Coincident", 4, 2, 5, 1),
    Sketcher.Constraint("Coincident", 5, 2, 6, 1),
    Sketcher.Constraint("Coincident", 6, 2, 7, 1),
    Sketcher.Constraint("Coincident", 7, 2, 4, 1),
    Sketcher.Constraint("Coincident", 8, 2, 9, 1),
    Sketcher.Constraint("Coincident", 9, 2, 10, 1),
    Sketcher.Constraint("Coincident", 10, 2, 11, 1),
    Sketcher.Constraint("Coincident", 11, 2, 8, 1),
    Sketcher.Constraint("Coincident", 12, 2, 13, 1),
    Sketcher.Constraint("Coincident", 13, 2, 14, 1),
    Sketcher.Constraint("Coincident", 14, 2, 15, 1),
    Sketcher.Constraint("Coincident", 15, 2, 12, 1),
    Sketcher.Constraint("Coincident", 16, 2, 17, 1),
    Sketcher.Constraint("Coincident", 17, 2, 18, 1),
    Sketcher.Constraint("Coincident", 18, 2, 19, 1),
    Sketcher.Constraint("Coincident", 19, 2, 16, 1),
    Sketcher.Constraint("Coincident", 20, 2, 21, 1),
    Sketcher.Constraint("Coincident", 21, 2, 22, 1),
    Sketcher.Constraint("Coincident", 22, 2, 23, 1),
    Sketcher.Constraint("Coincident", 23, 2, 20, 1),
    Sketcher.Constraint("Perpendicular", 0, 1),
    Sketcher.Constraint("Perpendicular", 1, 2),
    Sketcher.Constraint("Perpendicular", 2, 3),
    Sketcher.Constraint("Perpendicular", 3, 4),
    Sketcher.Constraint("Perpendicular", 4, 5),
    Sketcher.Constraint("Perpendicular", 5, 6),
    Sketcher.Constraint("Perpendicular", 6, 7),
    Sketcher.Constraint("Perpendicular", 7, 8),
    Sketcher.Constraint("Perpendicular", 8, 9),
    Sketcher.Constraint("Perpendicular", 9, 10),
    Sketcher.Constraint("Perpendicular", 10, 11),
    Sketcher.Constraint("Perpendicular", 11, 12),
    Sketcher.Constraint("Perpendicular", 12, 13),
    Sketcher.Constraint("Perpendicular", 13, 14),
    Sketcher.Constraint("Perpendicular", 14, 15),
    Sketcher.Constraint("Perpendicular", 15, 16),
    Sketcher.Constraint("Perpendicular", 16, 17),
    Sketcher.Constraint("Perpendicular", 17, 18),
    Sketcher.Constraint("Perpendicular", 18, 19),
    Sketcher.Constraint("Perpendicular", 19, 20),
    Sketcher.Constraint("Perpendicular", 20, 21),
    Sketcher.Constraint("Perpendicular", 21, 22),
    Sketcher.Constraint("Perpendicular", 22, 23),
    Sketcher.Constraint("Equal", 2, 4),
    Sketcher.Constraint("Equal", 3, 5),
    Sketcher.Constraint("Equal", 6, 8),
    Sketcher.Constraint("Equal", 7, 9),
    Sketcher.Constraint("Equal", 10, 12),
    Sketcher.Constraint("Equal", 11, 13),
    Sketcher.Constraint("Equal", 14, 16),
    Sketcher.Constraint("Equal", 15, 17),
    Sketcher.Constraint("Equal", 18, 20),
    Sketcher.Constraint("Equal", 19, 21),
    Sketcher.Constraint("Distance", 0, 5.0),
    Sketcher.Constraint("Distance", 1, 0.65),
    Sketcher.Constraint("DistanceY", 19, 2, -1, 1, 0.680101),
    Sketcher.Constraint("DistanceY", 22, 2, -1, 1, 3.5476),
    Sketcher.Constraint("DistanceY", 4, 2, 1, 2, 1.2476),
    Sketcher.Constraint("DistanceX", 8, 2, 4, 2, 0.9433),
    Sketcher.Constraint("DistanceY", 9, 2, 0, 2, 4.665699),
    Sketcher.Constraint("DistanceX", 0, 2, -1, 1, 11.30778),
    Sketcher.Constraint("DistanceX", 1, 2, -1, 1, 11.477371),
    Sketcher.Constraint("DistanceY", -1, 1, 1, 2, 8.484761),
    Sketcher.Constraint("DistanceY", -1, 1, 13, 2, 2.334922),
    Sketcher.Constraint("DistanceX", 14, 2, -1, 1, 9.791459),
    Sketcher.Constraint("DistanceX", 21, 2, -1, 1, 14.391659),
    Sketcher.Constraint("DistanceX", 4, 2, 2, 2, 6.22886),
    Sketcher.Constraint("DistanceX", 16, 2, 8, 2, 0.628719),
])
sketch8.setExpression("Constraints[57]", "Params.sketch8_length")
sketch8.setExpression("Constraints[58]", "Params.sketch8_length2")
pad5 = body.newObject("PartDesign::Pad", "Pad004")
pad5.Profile = sketch8
pad5.setExpression("Length", "Params.pad5_length")
doc.recompute()

fillet = body.newObject("PartDesign::Fillet", "Fillet")
fillet.Base = (pad5, edges_at(pad5, [
    (56.75, -6.566, 7.494),
    (56.75, -8.137, 5.619),
    (56.75, -9.081, 3.456),
    (56.75, -9.707, 1.344),
    (56.75, -9.709, -0.994),
    (56.75, -9.48, -3.234),
]))
fillet.setExpression("Radius", "Params.fillet_radius")

sketch9 = body.newObject("Sketcher::SketchObject", "Sketch008")
sketch9.AttachmentSupport = (doc.getObject("YZ_Plane"), [""])
sketch9.MapMode = "FlatFace"
sketch9.addGeometry([
    Part.ArcOfCircle(Part.Circle(Vector(0, 0, 0), Vector(0, 0, 1), 12), math.radians(-127), math.radians(127)),
    Part.ArcOfCircle(Part.Circle(Vector(-6.6, -8.9, 0), Vector(0, 0, 1), 0.9), math.radians(92), math.radians(233)),
    Part.ArcOfCircle(Part.Circle(Vector(-7, 0, 0), Vector(0, 0, 1), 8), math.radians(-88), math.radians(88)),
    Part.ArcOfCircle(Part.Circle(Vector(-6.6, 8.9, 0), Vector(0, 0, 1), 0.9), math.radians(127), math.radians(268)),
], False)
sketch9.addConstraint([
    Sketcher.Constraint("Tangent", 0, 1, 1, 2),
    Sketcher.Constraint("Tangent", 1, 1, 2, 1),
    Sketcher.Constraint("Tangent", 2, 2, 3, 2),
    Sketcher.Constraint("Tangent", 3, 1, 0, 2),
    Sketcher.Constraint("Coincident", 0, 3, -1, 1),
    Sketcher.Constraint("Equal", 1, 3),
    Sketcher.Constraint("PointOnObject", 2, 3, -1),
    Sketcher.Constraint("Radius", 0, 12.0),
    Sketcher.Constraint("Radius", 2, 8.0),
    Sketcher.Constraint("Radius", 1, 0.9),
    Sketcher.Constraint("DistanceX", 2, 3, -1, 1, 7.0),
])
sketch9.setExpression("Constraints[7]", "Params.sketch9_radius")
sketch9.setExpression("Constraints[8]", "Params.sketch9_radius2")
sketch9.setExpression("Constraints[9]", "Params.sketch9_radius3")
pocket3 = body.newObject("PartDesign::Pocket", "Pocket002")
pocket3.Profile = sketch9
pocket3.setExpression("Length", "Params.pocket3_length")
pocket3.Reversed = True

doc.recompute()
